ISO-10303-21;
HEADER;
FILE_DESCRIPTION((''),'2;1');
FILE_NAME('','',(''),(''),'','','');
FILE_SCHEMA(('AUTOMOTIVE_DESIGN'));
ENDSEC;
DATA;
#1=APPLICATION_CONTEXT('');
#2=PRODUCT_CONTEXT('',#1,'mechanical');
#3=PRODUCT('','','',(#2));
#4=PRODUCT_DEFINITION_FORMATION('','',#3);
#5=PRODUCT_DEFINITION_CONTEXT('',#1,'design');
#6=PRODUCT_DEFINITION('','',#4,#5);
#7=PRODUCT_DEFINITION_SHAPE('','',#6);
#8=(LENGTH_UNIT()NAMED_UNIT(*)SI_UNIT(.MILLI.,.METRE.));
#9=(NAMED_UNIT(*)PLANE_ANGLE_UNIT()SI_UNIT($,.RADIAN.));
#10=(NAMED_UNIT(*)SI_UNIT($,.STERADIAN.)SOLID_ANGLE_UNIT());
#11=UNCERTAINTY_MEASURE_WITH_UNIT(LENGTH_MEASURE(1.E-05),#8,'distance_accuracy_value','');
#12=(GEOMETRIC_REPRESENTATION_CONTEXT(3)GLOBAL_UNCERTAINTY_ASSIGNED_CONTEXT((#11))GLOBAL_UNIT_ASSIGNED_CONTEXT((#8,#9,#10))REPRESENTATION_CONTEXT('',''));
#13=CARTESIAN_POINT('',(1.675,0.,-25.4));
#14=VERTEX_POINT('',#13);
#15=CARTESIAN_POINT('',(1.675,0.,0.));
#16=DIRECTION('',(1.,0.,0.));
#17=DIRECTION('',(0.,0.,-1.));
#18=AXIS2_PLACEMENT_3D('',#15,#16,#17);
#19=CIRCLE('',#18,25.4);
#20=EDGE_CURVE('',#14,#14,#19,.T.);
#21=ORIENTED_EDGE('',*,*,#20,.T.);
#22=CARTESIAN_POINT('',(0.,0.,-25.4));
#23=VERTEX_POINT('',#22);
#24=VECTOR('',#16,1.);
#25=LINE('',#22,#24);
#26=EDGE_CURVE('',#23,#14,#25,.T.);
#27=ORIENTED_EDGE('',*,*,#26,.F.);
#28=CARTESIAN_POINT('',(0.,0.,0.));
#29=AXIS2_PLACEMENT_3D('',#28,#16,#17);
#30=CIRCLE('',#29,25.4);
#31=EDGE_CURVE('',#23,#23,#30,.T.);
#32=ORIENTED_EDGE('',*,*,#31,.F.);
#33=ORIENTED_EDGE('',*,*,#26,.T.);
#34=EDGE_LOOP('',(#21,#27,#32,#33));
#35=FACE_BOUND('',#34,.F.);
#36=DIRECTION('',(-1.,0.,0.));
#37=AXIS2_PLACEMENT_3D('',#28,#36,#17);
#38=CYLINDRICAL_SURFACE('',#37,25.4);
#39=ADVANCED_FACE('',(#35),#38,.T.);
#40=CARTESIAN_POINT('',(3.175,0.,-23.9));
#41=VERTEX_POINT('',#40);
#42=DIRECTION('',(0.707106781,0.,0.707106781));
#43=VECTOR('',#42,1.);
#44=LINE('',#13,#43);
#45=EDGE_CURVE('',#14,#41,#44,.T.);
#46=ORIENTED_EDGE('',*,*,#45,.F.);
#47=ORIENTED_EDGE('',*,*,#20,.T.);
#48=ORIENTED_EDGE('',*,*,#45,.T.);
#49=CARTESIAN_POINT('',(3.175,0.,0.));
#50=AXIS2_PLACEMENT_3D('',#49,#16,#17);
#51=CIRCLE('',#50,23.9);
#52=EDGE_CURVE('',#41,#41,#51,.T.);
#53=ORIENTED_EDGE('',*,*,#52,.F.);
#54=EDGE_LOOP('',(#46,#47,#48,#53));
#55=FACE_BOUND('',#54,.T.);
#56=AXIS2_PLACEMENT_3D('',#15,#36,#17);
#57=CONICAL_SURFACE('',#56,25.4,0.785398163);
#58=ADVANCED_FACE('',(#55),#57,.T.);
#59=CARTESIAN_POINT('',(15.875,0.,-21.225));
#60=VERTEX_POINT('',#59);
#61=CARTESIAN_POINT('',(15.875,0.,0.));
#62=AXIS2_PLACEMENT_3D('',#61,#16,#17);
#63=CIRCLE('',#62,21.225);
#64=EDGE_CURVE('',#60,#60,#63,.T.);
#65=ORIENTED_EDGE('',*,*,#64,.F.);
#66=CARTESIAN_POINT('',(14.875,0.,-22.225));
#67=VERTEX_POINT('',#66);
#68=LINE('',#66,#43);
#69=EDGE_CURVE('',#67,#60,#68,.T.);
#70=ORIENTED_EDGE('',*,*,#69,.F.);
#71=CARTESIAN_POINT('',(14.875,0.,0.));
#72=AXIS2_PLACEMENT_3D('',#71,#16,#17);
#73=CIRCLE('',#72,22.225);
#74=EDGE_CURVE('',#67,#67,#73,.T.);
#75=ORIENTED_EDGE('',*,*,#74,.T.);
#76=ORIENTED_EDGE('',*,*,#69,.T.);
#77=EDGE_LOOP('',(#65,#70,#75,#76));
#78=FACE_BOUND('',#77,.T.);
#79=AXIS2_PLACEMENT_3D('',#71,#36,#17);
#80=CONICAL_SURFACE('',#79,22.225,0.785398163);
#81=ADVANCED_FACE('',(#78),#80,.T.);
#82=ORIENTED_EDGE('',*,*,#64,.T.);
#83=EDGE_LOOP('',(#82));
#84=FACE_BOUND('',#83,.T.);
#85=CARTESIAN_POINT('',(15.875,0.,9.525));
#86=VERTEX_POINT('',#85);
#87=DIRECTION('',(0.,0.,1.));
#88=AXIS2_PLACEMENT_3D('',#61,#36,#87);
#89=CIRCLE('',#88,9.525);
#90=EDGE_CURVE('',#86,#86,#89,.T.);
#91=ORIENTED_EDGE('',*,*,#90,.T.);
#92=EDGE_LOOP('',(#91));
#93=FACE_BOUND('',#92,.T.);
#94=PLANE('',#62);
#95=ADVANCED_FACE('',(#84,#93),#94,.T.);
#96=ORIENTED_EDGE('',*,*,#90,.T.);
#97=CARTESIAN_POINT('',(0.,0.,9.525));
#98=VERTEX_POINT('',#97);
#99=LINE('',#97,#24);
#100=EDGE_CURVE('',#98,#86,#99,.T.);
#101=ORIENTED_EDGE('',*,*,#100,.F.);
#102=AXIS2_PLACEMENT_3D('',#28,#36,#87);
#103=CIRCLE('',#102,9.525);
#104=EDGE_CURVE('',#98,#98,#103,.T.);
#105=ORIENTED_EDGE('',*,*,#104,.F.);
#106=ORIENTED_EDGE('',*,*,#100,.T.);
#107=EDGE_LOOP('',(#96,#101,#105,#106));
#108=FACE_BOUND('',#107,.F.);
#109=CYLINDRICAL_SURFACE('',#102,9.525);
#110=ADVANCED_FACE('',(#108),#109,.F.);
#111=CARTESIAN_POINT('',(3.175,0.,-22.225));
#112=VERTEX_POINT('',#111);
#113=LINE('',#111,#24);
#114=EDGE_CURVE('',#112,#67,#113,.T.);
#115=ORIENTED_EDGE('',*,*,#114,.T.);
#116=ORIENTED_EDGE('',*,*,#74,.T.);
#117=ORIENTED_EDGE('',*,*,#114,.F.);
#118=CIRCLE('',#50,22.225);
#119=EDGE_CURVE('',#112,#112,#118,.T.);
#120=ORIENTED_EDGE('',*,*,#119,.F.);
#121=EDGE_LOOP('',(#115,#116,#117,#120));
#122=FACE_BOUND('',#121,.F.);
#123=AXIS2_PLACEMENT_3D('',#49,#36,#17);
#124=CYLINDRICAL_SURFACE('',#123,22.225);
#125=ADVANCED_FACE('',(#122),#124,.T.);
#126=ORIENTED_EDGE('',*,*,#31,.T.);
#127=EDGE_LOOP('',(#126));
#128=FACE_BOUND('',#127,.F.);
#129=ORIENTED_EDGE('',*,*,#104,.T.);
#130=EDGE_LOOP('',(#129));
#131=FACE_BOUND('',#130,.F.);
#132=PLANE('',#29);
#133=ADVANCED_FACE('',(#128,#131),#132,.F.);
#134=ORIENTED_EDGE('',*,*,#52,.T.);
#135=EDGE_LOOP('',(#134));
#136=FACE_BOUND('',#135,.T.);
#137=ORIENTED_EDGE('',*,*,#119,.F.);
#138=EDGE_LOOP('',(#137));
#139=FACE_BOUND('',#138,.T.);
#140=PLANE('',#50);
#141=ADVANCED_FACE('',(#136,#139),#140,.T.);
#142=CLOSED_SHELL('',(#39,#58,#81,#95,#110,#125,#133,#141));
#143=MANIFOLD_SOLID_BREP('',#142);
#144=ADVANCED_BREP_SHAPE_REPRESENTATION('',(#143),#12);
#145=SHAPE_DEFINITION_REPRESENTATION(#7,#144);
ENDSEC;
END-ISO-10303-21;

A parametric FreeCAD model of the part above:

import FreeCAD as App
import Part
import Sketcher

V = App.Vector
Q = App.Units.Quantity


def edges_at(feature, points):
    """Names of the edges that pass closest to the given points."""
    edges = feature.Shape.Edges
    near = lambda p: min(range(len(edges)), key=lambda i: edges[i].distToShape(Part.Vertex(*p))[0])
    return sorted({f"Edge{near(p) + 1}" for p in points})

doc = App.newDocument("Part")
body = doc.addObject("PartDesign::Body", "Body")

sketch1 = body.newObject("Sketcher::SketchObject", "Sketch")
sketch1.AttachmentSupport = (doc.getObject("YZ_Plane"), [""])
sketch1.MapMode = "FlatFace"
sketch1.addGeometry(Part.Circle(V(0, 0, 0), V(0, 0, 1), 25), False)
sketch1.addConstraint([
    Sketcher.Constraint("Coincident", 0, 3, -1, 1),
    Sketcher.Constraint("Diameter", 0, Q("2 in")),
])
pad1 = body.newObject("PartDesign::Pad", "Pad")
pad1.Profile = sketch1
pad1.Length = Q("0.125 in")

sketch2 = body.newObject("Sketcher::SketchObject", "Sketch001")
sketch2.AttachmentSupport = (doc.getObject("YZ_Plane"), [""])
sketch2.MapMode = "FlatFace"
sketch2.AttachmentOffset = App.Placement(V(0, 0, 0.125 * 25.4), App.Rotation())
sketch2.addGeometry(Part.Circle(V(0, 0, 0), V(0, 0, 1), 22), False)
sketch2.addConstraint([
    Sketcher.Constraint("Coincident", 0, 3, -1, 1),
    Sketcher.Constraint("Diameter", 0, Q("1.75 in")),
])
pad2 = body.newObject("PartDesign::Pad", "Pad001")
pad2.Profile = sketch2
pad2.Length = Q("0.5 in")

sketch3 = body.newObject("Sketcher::SketchObject", "Sketch002")
sketch3.AttachmentSupport = (doc.getObject("YZ_Plane"), [""])
sketch3.MapMode = "FlatFace"
sketch3.addGeometry(Part.Circle(V(0, 0, 0), V(0, 0, 1), 10), False)
sketch3.addConstraint([
    Sketcher.Constraint("Coincident", 0, 3, -1, 1),
    Sketcher.Constraint("Diameter", 0, Q("0.75 in")),
])
pocket1 = body.newObject("PartDesign::Pocket", "Pocket")
pocket1.Profile = sketch3
pocket1.Type = "ThroughAll"
pocket1.Reversed = True
doc.recompute()

chamfer = body.newObject("PartDesign::Chamfer", "Chamfer")
chamfer.Base = (pocket1, edges_at(pocket1, [(3.175, 0, 25.4)]))
chamfer.Size = 1.5
doc.recompute()

chamfer2 = body.newObject("PartDesign::Chamfer", "Chamfer001")
chamfer2.Base = (chamfer, edges_at(chamfer, [(15.875, 0, 22.225)]))
chamfer2.Size = 1

doc.recompute()
